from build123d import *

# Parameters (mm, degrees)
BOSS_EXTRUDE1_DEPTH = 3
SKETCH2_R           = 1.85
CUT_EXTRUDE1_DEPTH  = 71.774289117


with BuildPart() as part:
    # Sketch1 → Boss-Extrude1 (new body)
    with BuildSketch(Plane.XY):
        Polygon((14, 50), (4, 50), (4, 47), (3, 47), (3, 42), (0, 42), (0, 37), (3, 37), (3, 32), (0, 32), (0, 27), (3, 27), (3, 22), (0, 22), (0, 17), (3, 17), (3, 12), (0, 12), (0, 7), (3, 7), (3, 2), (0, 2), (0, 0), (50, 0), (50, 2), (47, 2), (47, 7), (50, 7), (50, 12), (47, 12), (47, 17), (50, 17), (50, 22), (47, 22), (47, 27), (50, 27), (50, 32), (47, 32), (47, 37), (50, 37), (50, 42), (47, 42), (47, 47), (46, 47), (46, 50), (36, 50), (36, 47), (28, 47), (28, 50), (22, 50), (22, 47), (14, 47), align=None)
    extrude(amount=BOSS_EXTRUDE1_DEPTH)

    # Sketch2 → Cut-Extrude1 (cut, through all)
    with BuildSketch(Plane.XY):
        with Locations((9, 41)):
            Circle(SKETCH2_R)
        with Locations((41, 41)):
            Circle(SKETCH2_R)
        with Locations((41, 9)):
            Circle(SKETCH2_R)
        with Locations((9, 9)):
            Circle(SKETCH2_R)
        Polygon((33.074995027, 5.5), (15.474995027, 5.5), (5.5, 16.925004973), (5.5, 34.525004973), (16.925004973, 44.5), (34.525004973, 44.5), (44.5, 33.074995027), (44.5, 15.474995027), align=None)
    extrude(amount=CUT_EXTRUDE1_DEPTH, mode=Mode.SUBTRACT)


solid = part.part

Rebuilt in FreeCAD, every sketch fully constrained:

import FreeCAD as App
import Part
import Sketcher

V = App.Vector

doc = App.newDocument("Part")
body = doc.addObject("PartDesign::Body", "Body")

# Sketch on XY plane
sketch1 = body.newObject("Sketcher::SketchObject", "Sketch")
sketch1.AttachmentSupport = (doc.getObject("XY_Plane"), [""])
sketch1.MapMode = "FlatFace"
sketch1.addGeometry(Part.LineSegment(V(14, 50, 0), V(4, 50, 0)), False)
sketch1.addGeometry(Part.LineSegment(V(4, 50, 0), V(4, 47, 0)), False)
sketch1.addGeometry(Part.LineSegment(V(4, 47, 0), V(3, 47, 0)), False)
sketch1.addGeometry(Part.LineSegment(V(3, 47, 0), V(3, 42, 0)), False)
sketch1.addGeometry(Part.LineSegment(V(3, 42, 0), V(0, 42, 0)), False)
sketch1.addGeometry(Part.LineSegment(V(0, 42, 0), V(0, 37, 0)), False)
sketch1.addGeometry(Part.LineSegment(V(0, 37, 0), V(3, 37, 0)), False)
sketch1.addGeometry(Part.LineSegment(V(3, 37, 0), V(3, 32, 0)), False)
sketch1.addGeometry(Part.LineSegment(V(3, 32, 0), V(0, 32, 0)), False)
sketch1.addGeometry(Part.LineSegment(V(0, 32, 0), V(0, 27, 0)), False)
sketch1.addGeometry(Part.LineSegment(V(0, 27, 0), V(3, 27, 0)), False)
sketch1.addGeometry(Part.LineSegment(V(3, 27, 0), V(3, 22, 0)), False)
sketch1.addGeometry(Part.LineSegment(V(3, 22, 0), V(0, 22, 0)), False)
sketch1.addGeometry(Part.LineSegment(V(0, 22, 0), V(0, 17, 0)), False)
sketch1.addGeometry(Part.LineSegment(V(0, 17, 0), V(3, 17, 0)), False)
sketch1.addGeometry(Part.LineSegment(V(3, 17, 0), V(3, 12, 0)), False)
sketch1.addGeometry(Part.LineSegment(V(3, 12, 0), V(0, 12, 0)), False)
sketch1.addGeometry(Part.LineSegment(V(0, 12, 0), V(0, 7, 0)), False)
sketch1.addGeometry(Part.LineSegment(V(0, 7, 0), V(3, 7, 0)), False)
sketch1.addGeometry(Part.LineSegment(V(3, 7, 0), V(3, 2, 0)), False)
sketch1.addGeometry(Part.LineSegment(V(3, 2, 0), V(0, 2, 0)), False)
sketch1.addGeometry(Part.LineSegment(V(0, 2, 0), V(0, 0, 0)), False)
sketch1.addGeometry(Part.LineSegment(V(0, 0, 0), V(50, 0, 0)), False)
sketch1.addGeometry(Part.LineSegment(V(50, 0, 0), V(50, 2, 0)), False)
sketch1.addGeometry(Part.LineSegment(V(50, 2, 0), V(47, 2, 0)), False)
sketch1.addGeometry(Part.LineSegment(V(47, 2, 0), V(47, 7, 0)), False)
sketch1.addGeometry(Part.LineSegment(V(47, 7, 0), V(50, 7, 0)), False)
sketch1.addGeometry(Part.LineSegment(V(50, 7, 0), V(50, 12, 0)), False)
sketch1.addGeometry(Part.LineSegment(V(50, 12, 0), V(47, 12, 0)), False)
sketch1.addGeometry(Part.LineSegment(V(47, 12, 0), V(47, 17, 0)), False)
sketch1.addGeometry(Part.LineSegment(V(47, 17, 0), V(50, 17, 0)), False)
sketch1.addGeometry(Part.LineSegment(V(50, 17, 0), V(50, 22, 0)), False)
sketch1.addGeometry(Part.LineSegment(V(50, 22, 0), V(47, 22, 0)), False)
sketch1.addGeometry(Part.LineSegment(V(47, 22, 0), V(47, 27, 0)), False)
sketch1.addGeometry(Part.LineSegment(V(47, 27, 0), V(50, 27, 0)), False)
sketch1.addGeometry(Part.LineSegment(V(50, 27, 0), V(50, 32, 0)), False)
sketch1.addGeometry(Part.LineSegment(V(50, 32, 0), V(47, 32, 0)), False)
sketch1.addGeometry(Part.LineSegment(V(47, 32, 0), V(47, 37, 0)), False)
sketch1.addGeometry(Part.LineSegment(V(47, 37, 0), V(50, 37, 0)), False)
sketch1.addGeometry(Part.LineSegment(V(50, 37, 0), V(50, 42, 0)), False)
sketch1.addGeometry(Part.LineSegment(V(50, 42, 0), V(47, 42, 0)), False)
sketch1.addGeometry(Part.LineSegment(V(47, 42, 0), V(47, 47, 0)), False)
sketch1.addGeometry(Part.LineSegment(V(47, 47, 0), V(46, 47, 0)), False)
sketch1.addGeometry(Part.LineSegment(V(46, 47, 0), V(46, 50, 0)), False)
sketch1.addGeometry(Part.LineSegment(V(46, 50, 0), V(36, 50, 0)), False)
sketch1.addGeometry(Part.LineSegment(V(36, 50, 0), V(36, 47, 0)), False)
sketch1.addGeometry(Part.LineSegment(V(36, 47, 0), V(28, 47, 0)), False)
sketch1.addGeometry(Part.LineSegment(V(28, 47, 0), V(28, 50, 0)), False)
sketch1.addGeometry(Part.LineSegment(V(28, 50, 0), V(22, 50, 0)), False)
sketch1.addGeometry(Part.LineSegment(V(22, 50, 0), V(22, 47, 0)), False)
sketch1.addGeometry(Part.LineSegment(V(22, 47, 0), V(14, 47, 0)), False)
sketch1.addGeometry(Part.LineSegment(V(14, 47, 0), V(14, 50, 0)), False)
sketch1.addConstraint(Sketcher.Constraint("Coincident", 0, 2, 1, 1))
sketch1.addConstraint(Sketcher.Constraint("Coincident", 1, 2, 2, 1))
sketch1.addConstraint(Sketcher.Constraint("Coincident", 2, 2, 3, 1))
sketch1.addConstraint(Sketcher.Constraint("Coincident", 3, 2, 4, 1))
sketch1.addConstraint(Sketcher.Constraint("Coincident", 4, 2, 5, 1))
sketch1.addConstraint(Sketcher.Constraint("Coincident", 5, 2, 6, 1))
sketch1.addConstraint(Sketcher.Constraint("Coincident", 6, 2, 7, 1))
sketch1.addConstraint(Sketcher.Constraint("Coincident", 7, 2, 8, 1))
sketch1.addConstraint(Sketcher.Constraint("Coincident", 8, 2, 9, 1))
sketch1.addConstraint(Sketcher.Constraint("Coincident", 9, 2, 10, 1))
sketch1.addConstraint(Sketcher.Constraint("Coincident", 10, 2, 11, 1))
sketch1.addConstraint(Sketcher.Constraint("Coincident", 11, 2, 12, 1))
sketch1.addConstraint(Sketcher.Constraint("Coincident", 12, 2, 13, 1))
sketch1.addConstraint(Sketcher.Constraint("Coincident", 13, 2, 14, 1))
sketch1.addConstraint(Sketcher.Constraint("Coincident", 14, 2, 15, 1))
sketch1.addConstraint(Sketcher.Constraint("Coincident", 15, 2, 16, 1))
sketch1.addConstraint(Sketcher.Constraint("Coincident", 16, 2, 17, 1))
sketch1.addConstraint(Sketcher.Constraint("Coincident", 17, 2, 18, 1))
sketch1.addConstraint(Sketcher.Constraint("Coincident", 18, 2, 19, 1))
sketch1.addConstraint(Sketcher.Constraint("Coincident", 19, 2, 20, 1))
sketch1.addConstraint(Sketcher.Constraint("Coincident", 20, 2, 21, 1))
sketch1.addConstraint(Sketcher.Constraint("Coincident", 21, 2, 22, 1))
sketch1.addConstraint(Sketcher.Constraint("Coincident", 22, 2, 23, 1))
sketch1.addConstraint(Sketcher.Constraint("Coincident", 23, 2, 24, 1))
sketch1.addConstraint(Sketcher.Constraint("Coincident", 24, 2, 25, 1))
sketch1.addConstraint(Sketcher.Constraint("Coincident", 25, 2, 26, 1))
sketch1.addConstraint(Sketcher.Constraint("Coincident", 26, 2, 27, 1))
sketch1.addConstraint(Sketcher.Constraint("Coincident", 27, 2, 28, 1))
sketch1.addConstraint(Sketcher.Constraint("Coincident", 28, 2, 29, 1))
sketch1.addConstraint(Sketcher.Constraint("Coincident", 29, 2, 30, 1))
sketch1.addConstraint(Sketcher.Constraint("Coincident", 30, 2, 31, 1))
sketch1.addConstraint(Sketcher.Constraint("Coincident", 31, 2, 32, 1))
sketch1.addConstraint(Sketcher.Constraint("Coincident", 32, 2, 33, 1))
sketch1.addConstraint(Sketcher.Constraint("Coincident", 33, 2, 34, 1))
sketch1.addConstraint(Sketcher.Constraint("Coincident", 34, 2, 35, 1))
sketch1.addConstraint(Sketcher.Constraint("Coincident", 35, 2, 36, 1))
sketch1.addConstraint(Sketcher.Constraint("Coincident", 36, 2, 37, 1))
sketch1.addConstraint(Sketcher.Constraint("Coincident", 37, 2, 38, 1))
sketch1.addConstraint(Sketcher.Constraint("Coincident", 38, 2, 39, 1))
sketch1.addConstraint(Sketcher.Constraint("Coincident", 39, 2, 40, 1))
sketch1.addConstraint(Sketcher.Constraint("Coincident", 40, 2, 41, 1))
sketch1.addConstraint(Sketcher.Constraint("Coincident", 41, 2, 42, 1))
sketch1.addConstraint(Sketcher.Constraint("Coincident", 42, 2, 43, 1))
sketch1.addConstraint(Sketcher.Constraint("Coincident", 43, 2, 44, 1))
sketch1.addConstraint(Sketcher.Constraint("Coincident", 44, 2, 45, 1))
sketch1.addConstraint(Sketcher.Constraint("Coincident", 45, 2, 46, 1))
sketch1.addConstraint(Sketcher.Constraint("Coincident", 46, 2, 47, 1))
sketch1.addConstraint(Sketcher.Constraint("Coincident", 47, 2, 48, 1))
sketch1.addConstraint(Sketcher.Constraint("Coincident", 48, 2, 49, 1))
sketch1.addConstraint(Sketcher.Constraint("Coincident", 49, 2, 50, 1))
sketch1.addConstraint(Sketcher.Constraint("Coincident", 50, 2, 51, 1))
sketch1.addConstraint(Sketcher.Constraint("Coincident", 51, 2, 0, 1))
sketch1.addConstraint(Sketcher.Constraint("Horizontal", 0))
sketch1.addConstraint(Sketcher.Constraint("Vertical", 1))
sketch1.addConstraint(Sketcher.Constraint("Horizontal", 2))
sketch1.addConstraint(Sketcher.Constraint("Vertical", 3))
sketch1.addConstraint(Sketcher.Constraint("Horizontal", 4))
sketch1.addConstraint(Sketcher.Constraint("Vertical", 5))
sketch1.addConstraint(Sketcher.Constraint("Horizontal", 6))
sketch1.addConstraint(Sketcher.Constraint("Vertical", 7))
sketch1.addConstraint(Sketcher.Constraint("Horizontal", 8))
sketch1.addConstraint(Sketcher.Constraint("Vertical", 9))
sketch1.addConstraint(Sketcher.Constraint("Horizontal", 10))
sketch1.addConstraint(Sketcher.Constraint("Vertical", 11))
sketch1.addConstraint(Sketcher.Constraint("Horizontal", 12))
sketch1.addConstraint(Sketcher.Constraint("Vertical", 13))
sketch1.addConstraint(Sketcher.Constraint("Horizontal", 14))
sketch1.addConstraint(Sketcher.Constraint("Vertical", 15))
sketch1.addConstraint(Sketcher.Constraint("Horizontal", 16))
sketch1.addConstraint(Sketcher.Constraint("Vertical", 17))
sketch1.addConstraint(Sketcher.Constraint("Horizontal", 18))
sketch1.addConstraint(Sketcher.Constraint("Vertical", 19))
sketch1.addConstraint(Sketcher.Constraint("Horizontal", 20))
sketch1.addConstraint(Sketcher.Constraint("Vertical", 21))
sketch1.addConstraint(Sketcher.Constraint("Horizontal", 22))
sketch1.addConstraint(Sketcher.Constraint("Vertical", 23))
sketch1.addConstraint(Sketcher.Constraint("Horizontal", 24))
sketch1.addConstraint(Sketcher.Constraint("Vertical", 25))
sketch1.addConstraint(Sketcher.Constraint("Horizontal", 26))
sketch1.addConstraint(Sketcher.Constraint("Vertical", 27))
sketch1.addConstraint(Sketcher.Constraint("Horizontal", 28))
sketch1.addConstraint(Sketcher.Constraint("Vertical", 29))
sketch1.addConstraint(Sketcher.Constraint("Horizontal", 30))
sketch1.addConstraint(Sketcher.Constraint("Vertical", 31))
sketch1.addConstraint(Sketcher.Constraint("Horizontal", 32))
sketch1.addConstraint(Sketcher.Constraint("Vertical", 33))
sketch1.addConstraint(Sketcher.Constraint("Horizontal", 34))
sketch1.addConstraint(Sketcher.Constraint("Vertical", 35))
sketch1.addConstraint(Sketcher.Constraint("Horizontal", 36))
sketch1.addConstraint(Sketcher.Constraint("Vertical", 37))
sketch1.addConstraint(Sketcher.Constraint("Horizontal", 38))
sketch1.addConstraint(Sketcher.Constraint("Vertical", 39))
sketch1.addConstraint(Sketcher.Constraint("Horizontal", 40))
sketch1.addConstraint(Sketcher.Constraint("Vertical", 41))
sketch1.addConstraint(Sketcher.Constraint("Horizontal", 42))
sketch1.addConstraint(Sketcher.Constraint("Vertical", 43))
sketch1.addConstraint(Sketcher.Constraint("Horizontal", 44))
sketch1.addConstraint(Sketcher.Constraint("Vertical", 45))
sketch1.addConstraint(Sketcher.Constraint("Horizontal", 46))
sketch1.addConstraint(Sketcher.Constraint("Vertical", 47))
sketch1.addConstraint(Sketcher.Constraint("Horizontal", 48))
sketch1.addConstraint(Sketcher.Constraint("Vertical", 49))
sketch1.addConstraint(Sketcher.Constraint("Horizontal", 50))
sketch1.addConstraint(Sketcher.Constraint("Vertical", 51))
sketch1.addConstraint(Sketcher.Constraint("Coincident", 21, 2, -1, 1))
sketch1.addConstraint(Sketcher.Constraint("PointOnObject", 4, 2, -2))
sketch1.addConstraint(Sketcher.Constraint("PointOnObject", 8, 2, -2))
sketch1.addConstraint(Sketcher.Constraint("PointOnObject", 12, 2, -2))
sketch1.addConstraint(Sketcher.Constraint("PointOnObject", 16, 2, -2))
sketch1.addConstraint(Sketcher.Constraint("Horizontal", 20, 2, 23, 2))
sketch1.addConstraint(Sketcher.Constraint("Horizontal", 18, 2, 25, 2))
sketch1.addConstraint(Sketcher.Constraint("Horizontal", 16, 2, 27, 2))
sketch1.addConstraint(Sketcher.Constraint("Horizontal", 14, 2, 29, 2))
sketch1.addConstraint(Sketcher.Constraint("Horizontal", 12, 2, 31, 2))
sketch1.addConstraint(Sketcher.Constraint("Horizontal", 10, 2, 33, 2))
sketch1.addConstraint(Sketcher.Constraint("Horizontal", 8, 2, 35, 2))
sketch1.addConstraint(Sketcher.Constraint("Horizontal", 6, 2, 37, 2))
sketch1.addConstraint(Sketcher.Constraint("Horizontal", 4, 2, 39, 2))
sketch1.addConstraint(Sketcher.Constraint("Horizontal", 2, 2, 41, 2))
sketch1.addConstraint(Sketcher.Constraint("Horizontal", 0, 2, 43, 2))
sketch1.addConstraint(Sketcher.Constraint("Horizontal", 42, 2, 45, 2))
sketch1.addConstraint(Sketcher.Constraint("Horizontal", 44, 2, 47, 2))
sketch1.addConstraint(Sketcher.Constraint("Horizontal", 46, 2, 49, 2))
sketch1.addConstraint(Sketcher.Constraint("Vertical", 3, 2, 6, 2))
sketch1.addConstraint(Sketcher.Constraint("Vertical", 7, 2, 10, 2))
sketch1.addConstraint(Sketcher.Constraint("Vertical", 11, 2, 14, 2))
sketch1.addConstraint(Sketcher.Constraint("Vertical", 15, 2, 18, 2))
sketch1.addConstraint(Sketcher.Constraint("Vertical", 23, 2, 26, 2))
sketch1.addConstraint(Sketcher.Constraint("Vertical", 25, 2, 28, 2))
sketch1.addConstraint(Sketcher.Constraint("Vertical", 27, 2, 30, 2))
sketch1.addConstraint(Sketcher.Constraint("Vertical", 29, 2, 32, 2))
sketch1.addConstraint(Sketcher.Constraint("Vertical", 31, 2, 34, 2))
sketch1.addConstraint(Sketcher.Constraint("Vertical", 33, 2, 36, 2))
sketch1.addConstraint(Sketcher.Constraint("Vertical", 35, 2, 38, 2))
sketch1.addConstraint(Sketcher.Constraint("Vertical", 37, 2, 40, 2))
sketch1.addConstraint(Sketcher.Constraint("Equal", 20, 24))
sketch1.addConstraint(Sketcher.Constraint("Equal", 2, 42))
sketch1.addConstraint(Sketcher.Constraint("Equal", 0, 44))
sketch1.addConstraint(Sketcher.Constraint("Equal", 46, 50))
sketch1.addConstraint(Sketcher.Constraint("Equal", 40, 1))
sketch1.addConstraint(Sketcher.Constraint("Equal", 3, 5))
sketch1.addConstraint(Sketcher.Constraint("Equal", 5, 7))
sketch1.addConstraint(Sketcher.Constraint("Equal", 7, 9))
sketch1.addConstraint(Sketcher.Constraint("Equal", 9, 11))
sketch1.addConstraint(Sketcher.Constraint("Equal", 11, 13))
sketch1.addConstraint(Sketcher.Constraint("Equal", 13, 15))
sketch1.addConstraint(Sketcher.Constraint("Equal", 15, 17))
sketch1.addConstraint(Sketcher.Constraint("Equal", 17, 19))
sketch1.addConstraint(Sketcher.Constraint("DistanceX", 0, 2, 0, 1, 10.0))
sketch1.addConstraint(Sketcher.Constraint("DistanceX", 2, 2, 2, 1, 1.0))
sketch1.addConstraint(Sketcher.Constraint("DistanceX", 4, 2, 4, 1, 3.0))
sketch1.addConstraint(Sketcher.Constraint("DistanceX", 22, 1, 22, 2, 50.0))
sketch1.addConstraint(Sketcher.Constraint("DistanceX", 46, 2, 46, 1, 8.0))
sketch1.addConstraint(Sketcher.Constraint("DistanceY", 3, 2, 3, 1, 5.0))
sketch1.addConstraint(Sketcher.Constraint("DistanceY", 21, 2, 21, 1, 2.0))
pad1 = body.newObject("PartDesign::Pad", "Pad")
pad1.Profile = sketch1
pad1.Length = 3

# Sketch on XY plane
sketch2 = body.newObject("Sketcher::SketchObject", "Sketch001")
sketch2.AttachmentSupport = (doc.getObject("XY_Plane"), [""])
sketch2.MapMode = "FlatFace"
sketch2.addGeometry(Part.Circle(V(9, 41, 0), V(0, 0, 1), 1.9), False)
sketch2.addGeometry(Part.Circle(V(41, 41, 0), V(0, 0, 1), 1.9), False)
sketch2.addGeometry(Part.Circle(V(41, 9, 0), V(0, 0, 1), 1.9), False)
sketch2.addGeometry(Part.Circle(V(9, 9, 0), V(0, 0, 1), 1.9), False)
sketch2.addGeometry(Part.LineSegment(V(15.5, 5.5, 0), V(33.1, 5.5, 0)), False)
sketch2.addGeometry(Part.LineSegment(V(33.1, 5.5, 0), V(44.5, 15.5, 0)), False)
sketch2.addGeometry(Part.LineSegment(V(44.5, 15.5, 0), V(44.5, 33.1, 0)), False)
sketch2.addGeometry(Part.LineSegment(V(44.5, 33.1, 0), V(34.5, 44.5, 0)), False)
sketch2.addGeometry(Part.LineSegment(V(34.5, 44.5, 0), V(16.9, 44.5, 0)), False)
sketch2.addGeometry(Part.LineSegment(V(16.9, 44.5, 0), V(5.5, 34.5, 0)), False)
sketch2.addGeometry(Part.LineSegment(V(5.5, 34.5, 0), V(5.5, 16.9, 0)), False)
sketch2.addGeometry(Part.LineSegment(V(5.5, 16.9, 0), V(15.5, 5.5, 0)), False)
sketch2.addConstraint(Sketcher.Constraint("Coincident", 4, 2, 5, 1))
sketch2.addConstraint(Sketcher.Constraint("Coincident", 5, 2, 6, 1))
sketch2.addConstraint(Sketcher.Constraint("Coincident", 6, 2, 7, 1))
sketch2.addConstraint(Sketcher.Constraint("Coincident", 7, 2, 8, 1))
sketch2.addConstraint(Sketcher.Constraint("Coincident", 8, 2, 9, 1))
sketch2.addConstraint(Sketcher.Constraint("Coincident", 9, 2, 10, 1))
sketch2.addConstraint(Sketcher.Constraint("Coincident", 10, 2, 11, 1))
sketch2.addConstraint(Sketcher.Constraint("Coincident", 11, 2, 4, 1))
sketch2.addConstraint(Sketcher.Constraint("Horizontal", 4))
sketch2.addConstraint(Sketcher.Constraint("Vertical", 6))
sketch2.addConstraint(Sketcher.Constraint("Horizontal", 8))
sketch2.addConstraint(Sketcher.Constraint("Vertical", 10))
sketch2.addConstraint(Sketcher.Constraint("Equal", 0, 1))
sketch2.addConstraint(Sketcher.Constraint("Equal", 1, 2))
sketch2.addConstraint(Sketcher.Constraint("Equal", 2, 3))
sketch2.addConstraint(Sketcher.Constraint("Perpendicular", 5, 7))
sketch2.addConstraint(Sketcher.Constraint("Perpendicular", 7, 9))
sketch2.addConstraint(Sketcher.Constraint("Perpendicular", 9, 11))
sketch2.addConstraint(Sketcher.Constraint("Horizontal", 0, 3, 1, 3))
sketch2.addConstraint(Sketcher.Constraint("Horizontal", 2, 3, 3, 3))
sketch2.addConstraint(Sketcher.Constraint("Vertical", 1, 3, 2, 3))
sketch2.addConstraint(Sketcher.Constraint("Vertical", 0, 3, 3, 3))
sketch2.addConstraint(Sketcher.Constraint("Equal", 4, 8))
sketch2.addConstraint(Sketcher.Constraint("Equal", 8, 6))
sketch2.addConstraint(Sketcher.Constraint("Equal", 6, 10))
sketch2.addConstraint(Sketcher.Constraint("Equal", 5, 7))
sketch2.addConstraint(Sketcher.Constraint("Diameter", 0, 3.7))
sketch2.addConstraint(Sketcher.Constraint("DistanceX", 4, 1, 4, 2, 17.6))
sketch2.addConstraint(Sketcher.Constraint("DistanceX", -1, 1, 0, 3, 9.0))
sketch2.addConstraint(Sketcher.Constraint("DistanceY", -1, 1, 0, 3, 41.0))
sketch2.addConstraint(Sketcher.Constraint("DistanceX", -1, 1, 1, 3, 41.0))
sketch2.addConstraint(Sketcher.Constraint("DistanceY", -1, 1, 2, 3, 9.0))
sketch2.addConstraint(Sketcher.Constraint("DistanceY", -1, 1, 4, 2, 5.5))
sketch2.addConstraint(Sketcher.Constraint("DistanceX", -1, 1, 5, 2, 44.5))
sketch2.addConstraint(Sketcher.Constraint("DistanceY", -1, 1, 7, 2, 44.5))
sketch2.addConstraint(Sketcher.Constraint("Distance", 5, 15.166782))
pocket1 = body.newObject("PartDesign::Pocket", "Pocket")
pocket1.Profile = sketch2
pocket1.Type = "ThroughAll"
pocket1.Reversed = True

doc.recompute()
